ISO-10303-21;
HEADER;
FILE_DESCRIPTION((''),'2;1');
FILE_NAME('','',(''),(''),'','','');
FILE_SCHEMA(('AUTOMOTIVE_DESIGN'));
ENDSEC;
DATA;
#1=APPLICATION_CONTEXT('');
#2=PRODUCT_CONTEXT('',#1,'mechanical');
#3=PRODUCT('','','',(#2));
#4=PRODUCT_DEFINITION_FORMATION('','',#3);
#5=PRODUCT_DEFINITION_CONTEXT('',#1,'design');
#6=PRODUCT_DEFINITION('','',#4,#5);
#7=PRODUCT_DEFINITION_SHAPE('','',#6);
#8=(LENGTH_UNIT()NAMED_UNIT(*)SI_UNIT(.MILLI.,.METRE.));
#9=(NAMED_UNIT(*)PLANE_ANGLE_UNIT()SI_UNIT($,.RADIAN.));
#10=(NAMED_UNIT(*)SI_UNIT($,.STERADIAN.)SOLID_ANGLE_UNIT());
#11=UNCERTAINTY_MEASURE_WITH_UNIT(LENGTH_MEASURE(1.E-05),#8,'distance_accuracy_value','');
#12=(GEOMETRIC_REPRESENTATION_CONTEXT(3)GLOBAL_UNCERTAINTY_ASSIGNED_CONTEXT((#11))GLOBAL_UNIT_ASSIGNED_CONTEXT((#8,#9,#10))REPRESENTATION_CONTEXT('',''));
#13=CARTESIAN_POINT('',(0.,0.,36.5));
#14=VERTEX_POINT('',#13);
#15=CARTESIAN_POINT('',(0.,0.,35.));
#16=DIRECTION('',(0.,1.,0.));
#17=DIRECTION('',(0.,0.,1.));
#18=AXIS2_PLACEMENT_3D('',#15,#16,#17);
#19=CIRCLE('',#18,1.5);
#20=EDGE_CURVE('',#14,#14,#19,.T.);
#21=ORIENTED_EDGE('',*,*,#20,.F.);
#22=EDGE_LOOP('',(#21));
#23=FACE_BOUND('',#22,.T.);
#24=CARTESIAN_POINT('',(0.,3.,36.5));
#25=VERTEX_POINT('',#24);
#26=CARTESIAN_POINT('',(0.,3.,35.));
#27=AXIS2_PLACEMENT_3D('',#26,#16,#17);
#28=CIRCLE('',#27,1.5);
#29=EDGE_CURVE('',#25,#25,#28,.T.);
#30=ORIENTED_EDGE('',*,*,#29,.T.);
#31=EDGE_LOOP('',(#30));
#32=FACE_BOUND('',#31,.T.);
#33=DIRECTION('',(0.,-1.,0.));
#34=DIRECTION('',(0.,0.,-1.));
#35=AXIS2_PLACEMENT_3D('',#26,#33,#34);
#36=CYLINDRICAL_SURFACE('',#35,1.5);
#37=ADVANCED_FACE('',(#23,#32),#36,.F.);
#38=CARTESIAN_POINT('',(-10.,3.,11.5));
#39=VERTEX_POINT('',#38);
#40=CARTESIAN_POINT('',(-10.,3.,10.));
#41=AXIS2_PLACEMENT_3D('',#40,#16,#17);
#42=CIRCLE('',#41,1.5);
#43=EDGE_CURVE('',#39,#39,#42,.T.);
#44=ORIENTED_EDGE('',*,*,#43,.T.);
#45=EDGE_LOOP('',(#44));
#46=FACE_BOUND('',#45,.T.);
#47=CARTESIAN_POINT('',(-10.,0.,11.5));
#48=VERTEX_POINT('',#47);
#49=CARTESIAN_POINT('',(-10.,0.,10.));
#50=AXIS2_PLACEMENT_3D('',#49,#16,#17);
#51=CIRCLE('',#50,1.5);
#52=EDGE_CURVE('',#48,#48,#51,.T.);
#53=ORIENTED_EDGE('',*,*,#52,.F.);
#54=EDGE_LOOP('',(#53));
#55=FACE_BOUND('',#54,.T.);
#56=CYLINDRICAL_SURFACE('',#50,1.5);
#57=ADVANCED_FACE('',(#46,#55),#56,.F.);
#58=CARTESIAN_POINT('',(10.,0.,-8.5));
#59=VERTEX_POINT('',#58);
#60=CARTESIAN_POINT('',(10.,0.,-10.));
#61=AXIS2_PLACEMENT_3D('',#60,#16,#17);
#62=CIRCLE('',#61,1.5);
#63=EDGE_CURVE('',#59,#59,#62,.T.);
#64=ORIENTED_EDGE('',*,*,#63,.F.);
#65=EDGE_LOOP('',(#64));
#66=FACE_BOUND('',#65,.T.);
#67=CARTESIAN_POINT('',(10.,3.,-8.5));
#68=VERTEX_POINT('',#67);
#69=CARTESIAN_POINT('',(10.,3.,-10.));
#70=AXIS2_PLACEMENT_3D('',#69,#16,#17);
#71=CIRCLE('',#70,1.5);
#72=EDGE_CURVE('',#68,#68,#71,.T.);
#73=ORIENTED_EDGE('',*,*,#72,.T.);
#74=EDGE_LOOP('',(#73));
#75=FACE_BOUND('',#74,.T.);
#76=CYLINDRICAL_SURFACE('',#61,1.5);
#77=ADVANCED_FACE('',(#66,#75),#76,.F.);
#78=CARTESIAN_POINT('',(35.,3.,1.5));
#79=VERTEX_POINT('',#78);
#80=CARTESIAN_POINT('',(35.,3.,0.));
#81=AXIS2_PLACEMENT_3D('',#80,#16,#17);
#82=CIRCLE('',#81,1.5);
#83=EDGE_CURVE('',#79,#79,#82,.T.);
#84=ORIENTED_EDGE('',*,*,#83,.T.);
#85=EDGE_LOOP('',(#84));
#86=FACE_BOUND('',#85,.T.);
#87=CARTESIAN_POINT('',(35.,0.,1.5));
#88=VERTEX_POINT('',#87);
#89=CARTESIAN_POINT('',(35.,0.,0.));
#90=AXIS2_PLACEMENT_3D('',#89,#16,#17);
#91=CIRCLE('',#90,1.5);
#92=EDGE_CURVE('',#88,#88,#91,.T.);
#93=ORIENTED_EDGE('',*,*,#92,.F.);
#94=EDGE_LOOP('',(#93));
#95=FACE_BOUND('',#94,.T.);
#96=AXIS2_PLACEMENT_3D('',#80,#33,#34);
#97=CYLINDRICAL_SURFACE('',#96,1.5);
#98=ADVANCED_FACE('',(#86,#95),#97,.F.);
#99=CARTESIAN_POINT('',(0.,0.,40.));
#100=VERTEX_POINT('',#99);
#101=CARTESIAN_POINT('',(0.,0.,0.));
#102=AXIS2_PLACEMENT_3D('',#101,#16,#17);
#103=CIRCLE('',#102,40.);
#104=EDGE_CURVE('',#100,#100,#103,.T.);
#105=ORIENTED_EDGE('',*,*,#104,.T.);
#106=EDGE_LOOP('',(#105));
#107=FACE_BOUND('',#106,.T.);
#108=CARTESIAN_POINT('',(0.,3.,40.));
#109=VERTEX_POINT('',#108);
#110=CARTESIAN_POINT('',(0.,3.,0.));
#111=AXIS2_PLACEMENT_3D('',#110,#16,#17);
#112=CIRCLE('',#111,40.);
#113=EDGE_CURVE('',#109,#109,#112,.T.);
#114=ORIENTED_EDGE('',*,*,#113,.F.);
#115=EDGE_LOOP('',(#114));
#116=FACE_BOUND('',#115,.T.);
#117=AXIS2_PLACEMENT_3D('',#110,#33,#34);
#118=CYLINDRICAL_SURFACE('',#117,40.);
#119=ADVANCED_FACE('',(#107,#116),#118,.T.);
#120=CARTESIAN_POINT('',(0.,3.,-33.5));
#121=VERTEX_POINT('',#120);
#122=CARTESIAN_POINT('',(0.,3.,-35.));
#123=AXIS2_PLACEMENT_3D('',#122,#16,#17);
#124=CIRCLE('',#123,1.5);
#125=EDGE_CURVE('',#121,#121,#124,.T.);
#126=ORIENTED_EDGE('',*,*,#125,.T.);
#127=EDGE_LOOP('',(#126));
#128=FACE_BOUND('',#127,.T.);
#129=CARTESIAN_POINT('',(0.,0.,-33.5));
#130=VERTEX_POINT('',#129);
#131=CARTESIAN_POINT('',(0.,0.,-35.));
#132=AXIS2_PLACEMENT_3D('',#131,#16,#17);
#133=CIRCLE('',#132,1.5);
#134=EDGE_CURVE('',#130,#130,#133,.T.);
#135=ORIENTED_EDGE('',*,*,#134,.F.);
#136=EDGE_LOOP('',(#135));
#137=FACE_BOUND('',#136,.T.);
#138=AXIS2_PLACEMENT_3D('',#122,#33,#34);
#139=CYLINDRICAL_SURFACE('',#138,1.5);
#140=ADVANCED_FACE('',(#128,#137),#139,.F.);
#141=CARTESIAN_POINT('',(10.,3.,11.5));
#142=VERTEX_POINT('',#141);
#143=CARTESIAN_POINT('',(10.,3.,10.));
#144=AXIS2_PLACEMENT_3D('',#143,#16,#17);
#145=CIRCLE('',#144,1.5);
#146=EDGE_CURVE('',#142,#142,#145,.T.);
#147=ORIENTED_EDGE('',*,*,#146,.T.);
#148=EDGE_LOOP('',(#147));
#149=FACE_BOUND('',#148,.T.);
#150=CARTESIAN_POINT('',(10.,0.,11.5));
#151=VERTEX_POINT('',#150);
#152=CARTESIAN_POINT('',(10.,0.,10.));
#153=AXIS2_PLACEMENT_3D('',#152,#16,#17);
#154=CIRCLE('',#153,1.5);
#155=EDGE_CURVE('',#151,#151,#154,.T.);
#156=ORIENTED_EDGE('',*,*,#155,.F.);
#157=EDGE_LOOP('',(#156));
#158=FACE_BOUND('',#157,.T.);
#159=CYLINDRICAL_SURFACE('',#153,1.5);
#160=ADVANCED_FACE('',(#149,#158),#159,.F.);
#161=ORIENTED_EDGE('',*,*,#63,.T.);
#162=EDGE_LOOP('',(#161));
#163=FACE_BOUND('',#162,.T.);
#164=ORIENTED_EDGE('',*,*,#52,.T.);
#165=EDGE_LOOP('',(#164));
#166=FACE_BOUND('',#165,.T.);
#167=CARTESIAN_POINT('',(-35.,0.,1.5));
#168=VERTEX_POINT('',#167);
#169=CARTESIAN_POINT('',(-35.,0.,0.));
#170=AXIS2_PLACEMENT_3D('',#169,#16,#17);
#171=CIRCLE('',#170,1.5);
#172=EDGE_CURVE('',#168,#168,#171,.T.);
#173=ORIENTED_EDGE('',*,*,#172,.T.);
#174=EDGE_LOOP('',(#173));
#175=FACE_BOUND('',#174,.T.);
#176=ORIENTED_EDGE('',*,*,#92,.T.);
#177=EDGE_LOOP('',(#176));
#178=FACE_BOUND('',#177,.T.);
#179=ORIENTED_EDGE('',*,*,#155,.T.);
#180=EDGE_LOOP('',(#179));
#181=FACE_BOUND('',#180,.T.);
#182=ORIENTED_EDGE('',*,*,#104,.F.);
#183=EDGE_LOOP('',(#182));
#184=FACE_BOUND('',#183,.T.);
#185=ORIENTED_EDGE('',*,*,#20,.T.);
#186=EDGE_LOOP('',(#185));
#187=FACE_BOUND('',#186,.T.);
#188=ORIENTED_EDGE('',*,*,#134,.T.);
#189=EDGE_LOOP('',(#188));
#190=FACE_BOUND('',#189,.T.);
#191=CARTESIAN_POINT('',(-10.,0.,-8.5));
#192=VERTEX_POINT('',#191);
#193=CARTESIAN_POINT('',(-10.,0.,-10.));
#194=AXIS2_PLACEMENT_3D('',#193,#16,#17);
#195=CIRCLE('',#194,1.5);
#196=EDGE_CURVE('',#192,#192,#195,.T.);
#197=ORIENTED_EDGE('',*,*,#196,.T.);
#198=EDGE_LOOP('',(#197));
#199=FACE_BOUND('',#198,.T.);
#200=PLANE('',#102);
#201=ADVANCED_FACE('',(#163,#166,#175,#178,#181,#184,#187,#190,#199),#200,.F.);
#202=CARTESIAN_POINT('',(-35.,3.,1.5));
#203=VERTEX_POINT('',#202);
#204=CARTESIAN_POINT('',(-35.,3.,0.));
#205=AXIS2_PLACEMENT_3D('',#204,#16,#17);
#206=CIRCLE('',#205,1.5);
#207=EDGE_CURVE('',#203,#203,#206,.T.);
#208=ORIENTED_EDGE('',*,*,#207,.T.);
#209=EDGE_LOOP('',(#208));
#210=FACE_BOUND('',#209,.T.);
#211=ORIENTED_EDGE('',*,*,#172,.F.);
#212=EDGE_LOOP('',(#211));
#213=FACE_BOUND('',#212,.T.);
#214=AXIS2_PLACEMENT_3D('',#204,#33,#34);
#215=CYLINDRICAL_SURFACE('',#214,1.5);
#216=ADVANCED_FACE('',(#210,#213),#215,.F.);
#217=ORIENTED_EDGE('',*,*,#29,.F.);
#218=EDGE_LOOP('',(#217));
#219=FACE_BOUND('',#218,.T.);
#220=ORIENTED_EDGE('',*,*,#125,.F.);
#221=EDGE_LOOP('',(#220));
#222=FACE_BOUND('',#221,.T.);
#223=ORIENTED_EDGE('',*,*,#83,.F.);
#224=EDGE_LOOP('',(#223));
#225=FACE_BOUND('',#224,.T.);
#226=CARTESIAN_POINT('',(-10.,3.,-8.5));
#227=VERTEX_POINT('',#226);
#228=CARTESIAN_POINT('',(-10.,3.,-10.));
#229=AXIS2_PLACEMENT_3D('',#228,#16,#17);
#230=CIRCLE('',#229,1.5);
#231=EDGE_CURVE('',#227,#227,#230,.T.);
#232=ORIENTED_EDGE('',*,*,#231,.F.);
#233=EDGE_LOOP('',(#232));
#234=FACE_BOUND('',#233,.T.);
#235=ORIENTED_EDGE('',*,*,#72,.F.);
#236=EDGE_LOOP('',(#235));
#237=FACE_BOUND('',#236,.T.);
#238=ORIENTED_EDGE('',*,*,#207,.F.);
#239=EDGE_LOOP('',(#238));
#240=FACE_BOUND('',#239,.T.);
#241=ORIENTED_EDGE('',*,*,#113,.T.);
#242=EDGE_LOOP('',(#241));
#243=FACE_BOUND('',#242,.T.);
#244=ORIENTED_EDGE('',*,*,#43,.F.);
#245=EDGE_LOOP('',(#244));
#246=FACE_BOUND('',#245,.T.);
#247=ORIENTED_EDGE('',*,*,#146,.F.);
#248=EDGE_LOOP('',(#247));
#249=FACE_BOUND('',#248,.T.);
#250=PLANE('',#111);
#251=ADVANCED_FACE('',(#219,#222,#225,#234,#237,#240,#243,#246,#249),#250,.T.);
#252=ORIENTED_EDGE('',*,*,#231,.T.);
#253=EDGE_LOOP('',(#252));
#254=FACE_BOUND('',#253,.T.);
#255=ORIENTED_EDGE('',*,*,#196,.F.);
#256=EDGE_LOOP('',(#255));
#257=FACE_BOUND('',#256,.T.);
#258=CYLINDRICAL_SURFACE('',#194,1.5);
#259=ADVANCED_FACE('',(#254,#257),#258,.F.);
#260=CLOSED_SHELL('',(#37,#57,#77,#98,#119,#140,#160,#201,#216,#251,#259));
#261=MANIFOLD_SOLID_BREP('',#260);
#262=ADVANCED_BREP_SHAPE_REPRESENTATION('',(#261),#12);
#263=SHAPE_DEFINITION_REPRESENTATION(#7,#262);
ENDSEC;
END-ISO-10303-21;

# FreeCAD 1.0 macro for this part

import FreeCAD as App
import Part
import Sketcher

V = App.Vector

doc = App.newDocument("Part")
body = doc.addObject("PartDesign::Body", "Body")

# Sketch on XZ plane
sketch1 = doc.addObject("Sketcher::SketchObject", "Sketch")
body.addObject(sketch1)
sketch1.AttachmentSupport = (doc.XZ_Plane, [""])
sketch1.MapMode = "FlatFace"
sketch1.addGeometry([
    Part.Circle(V(0, 0, 0), V(0, 0, 1), 40),  # 0
    Part.Circle(V(0, 35, 0), V(0, 0, 1), 1.5),  # 1
    Part.Circle(V(-35, 0, 0), V(0, 0, 1), 1.5),  # 2
    Part.Circle(V(35, 0, 0), V(0, 0, 1), 1.5),  # 3
    Part.Circle(V(0, -35, 0), V(0, 0, 1), 1.5),  # 4
], False)
sketch1.addConstraint([
    Sketcher.Constraint("Coincident", 0, 3, -1, 1),
    Sketcher.Constraint("Equal", 1, 2),
    Sketcher.Constraint("Equal", 2, 3),
    Sketcher.Constraint("Equal", 3, 4),
    Sketcher.Constraint("Symmetric", 2, 3, 3, 3, -1, 1),
    Sketcher.Constraint("Symmetric", 1, 3, 4, 3, -1, 1),
    Sketcher.Constraint("PointOnObject", 1, 3, -2),
    Sketcher.Constraint("PointOnObject", 2, 3, -1),
    Sketcher.Constraint("Diameter", 0, 80.0),
    Sketcher.Constraint("Diameter", 1, 3.0),
    Sketcher.Constraint("DistanceY", -1, 1, 1, 3, 35.0),
    Sketcher.Constraint("DistanceX", 2, 3, -1, 1, 35.0),
])
pad1 = doc.addObject("PartDesign::Pad", "Pad")
body.addObject(pad1)
pad1.Profile = sketch1
pad1.Length = 3
pad1.Reversed = True

# Sketch on XZ plane
sketch2 = doc.addObject("Sketcher::SketchObject", "Sketch001")
body.addObject(sketch2)
sketch2.AttachmentSupport = (doc.XZ_Plane, [""])
sketch2.MapMode = "FlatFace"
sketch2.AttachmentOffset = App.Placement(V(0, 0, -3), App.Rotation())
sketch2.addGeometry([
    Part.Circle(V(10, -10, 0), V(0, 0, 1), 1.5),
    Part.Circle(V(-10, -10, 0), V(0, 0, 1), 1.5),
    Part.Circle(V(-10, 10, 0), V(0, 0, 1), 1.5),
    Part.Circle(V(10, 10, 0), V(0, 0, 1), 1.5),
], False)
sketch2.addConstraint([
    Sketcher.Constraint("Equal", 0, 1),
    Sketcher.Constraint("Equal", 1, 2),
    Sketcher.Constraint("Equal", 2, 3),
    Sketcher.Constraint("Symmetric", 0, 3, 2, 3, -1, 1),
    Sketcher.Constraint("Symmetric", 1, 3, 3, 3, -1, 1),
    Sketcher.Constraint("Symmetric", 0, 3, 1, 3, -2),
    Sketcher.Constraint("Diameter", 0, 3.0),
    Sketcher.Constraint("DistanceX", -1, 1, 0, 3, 10.0),
    Sketcher.Constraint("DistanceY", 0, 3, -1, 1, 10.0),
])
pocket1 = doc.addObject("PartDesign::Pocket", "Pocket")
body.addObject(pocket1)
pocket1.Profile = sketch2
pocket1.Length = 3
pocket1.Reversed = True

doc.recompute()
